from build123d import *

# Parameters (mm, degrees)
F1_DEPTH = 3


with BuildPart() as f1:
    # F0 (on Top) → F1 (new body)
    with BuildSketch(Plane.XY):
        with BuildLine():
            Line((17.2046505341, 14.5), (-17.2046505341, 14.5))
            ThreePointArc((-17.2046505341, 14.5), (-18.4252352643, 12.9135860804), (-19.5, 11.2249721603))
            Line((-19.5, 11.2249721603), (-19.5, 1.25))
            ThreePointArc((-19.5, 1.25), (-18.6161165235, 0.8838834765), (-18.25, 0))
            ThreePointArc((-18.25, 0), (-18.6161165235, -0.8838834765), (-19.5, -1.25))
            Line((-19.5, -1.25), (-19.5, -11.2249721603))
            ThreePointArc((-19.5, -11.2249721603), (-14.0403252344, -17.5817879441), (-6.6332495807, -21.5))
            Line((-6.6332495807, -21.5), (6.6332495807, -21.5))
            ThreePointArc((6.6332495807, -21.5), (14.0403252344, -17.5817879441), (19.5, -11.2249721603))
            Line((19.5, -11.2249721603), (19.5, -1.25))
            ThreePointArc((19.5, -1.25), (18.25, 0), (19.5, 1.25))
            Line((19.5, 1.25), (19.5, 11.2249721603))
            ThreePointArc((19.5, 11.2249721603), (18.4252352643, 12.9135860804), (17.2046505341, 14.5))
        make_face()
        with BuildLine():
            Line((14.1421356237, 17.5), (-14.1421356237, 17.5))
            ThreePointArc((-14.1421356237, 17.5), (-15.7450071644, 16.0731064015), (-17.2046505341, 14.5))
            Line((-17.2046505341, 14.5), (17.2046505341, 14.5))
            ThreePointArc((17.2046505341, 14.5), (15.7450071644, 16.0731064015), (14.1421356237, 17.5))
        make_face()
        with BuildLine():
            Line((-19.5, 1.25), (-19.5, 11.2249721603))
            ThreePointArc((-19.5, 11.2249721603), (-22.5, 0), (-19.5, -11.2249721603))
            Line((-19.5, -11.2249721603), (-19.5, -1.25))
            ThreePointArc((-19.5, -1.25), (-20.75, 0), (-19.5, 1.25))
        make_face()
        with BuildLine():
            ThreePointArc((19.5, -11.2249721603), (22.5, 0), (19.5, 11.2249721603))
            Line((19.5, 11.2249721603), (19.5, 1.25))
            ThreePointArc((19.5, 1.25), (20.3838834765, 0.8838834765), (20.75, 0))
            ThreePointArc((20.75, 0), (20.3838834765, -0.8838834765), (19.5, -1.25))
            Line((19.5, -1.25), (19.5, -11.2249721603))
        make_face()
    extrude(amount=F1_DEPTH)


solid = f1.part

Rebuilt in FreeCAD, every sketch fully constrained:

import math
import FreeCAD as App
import Part
import Sketcher
Q = App.Units.Quantity

doc = App.newDocument("Part")
body = doc.addObject("PartDesign::Body", "Body")

# Sketch on XY plane
sketch1 = body.newObject("Sketcher::SketchObject", "Sketch")
sketch1.AttachmentSupport = (doc.getObject("XY_Plane"), [""])
sketch1.MapMode = "FlatFace"
sketch1.addGeometry([
    Part.ArcOfCircle(Part.Circle(App.Vector(0, 0, 0), App.Vector(0, 0, 1), 22.5), math.radians(139.875965), math.radians(150.073565)),  # 0
    Part.ArcOfCircle(Part.Circle(App.Vector(0, 0, 0), App.Vector(0, 0, 1), 22.5), math.radians(150.073565), math.radians(209.926435)),  # 1
    Part.ArcOfCircle(Part.Circle(App.Vector(0, 0, 0), App.Vector(0, 0, 1), 22.5), math.radians(-150.073565), math.radians(-107.14621)),  # 2
    Part.LineSegment(App.Vector(-6.63325, -21.5, 0), App.Vector(6.63325, -21.5, 0)),  # 3
    Part.ArcOfCircle(Part.Circle(App.Vector(0, 0, 0), App.Vector(0, 0, 1), 22.5), math.radians(-72.85379), math.radians(-29.926435)),  # 4
    Part.ArcOfCircle(Part.Circle(App.Vector(0, 0, 0), App.Vector(0, 0, 1), 22.5), math.radians(-29.926435), math.radians(29.926435)),  # 5
    Part.ArcOfCircle(Part.Circle(App.Vector(0, 0, 0), App.Vector(0, 0, 1), 22.5), math.radians(29.926435), math.radians(40.124035)),  # 6
    Part.ArcOfCircle(Part.Circle(App.Vector(0, 0, 0), App.Vector(0, 0, 1), 22.5), math.radians(40.124035), math.radians(51.057559)),  # 7
    Part.LineSegment(App.Vector(14.142136, 17.5, 0), App.Vector(-14.142136, 17.5, 0)),  # 8
    Part.ArcOfCircle(Part.Circle(App.Vector(0, 0, 0), App.Vector(0, 0, 1), 22.5), math.radians(128.942441), math.radians(139.875965)),  # 9
    Part.ArcOfCircle(Part.Circle(App.Vector(19.5, 0, 0), App.Vector(0, 0, 1), 1.25), math.radians(90), math.radians(270)),  # 10
    Part.ArcOfCircle(Part.Circle(App.Vector(19.5, 0, 0), App.Vector(0, 0, 1), 1.25), math.radians(0), math.radians(90)),  # 11
    Part.ArcOfCircle(Part.Circle(App.Vector(19.5, 0, 0), App.Vector(0, 0, 1), 1.25), math.radians(-90), math.radians(0)),  # 12
    Part.ArcOfCircle(Part.Circle(App.Vector(-19.5, 0, 0), App.Vector(0, 0, 1), 1.25), math.radians(0), math.radians(90)),  # 13
    Part.ArcOfCircle(Part.Circle(App.Vector(-19.5, 0, 0), App.Vector(0, 0, 1), 1.25), math.radians(-90), math.radians(0)),  # 14
    Part.ArcOfCircle(Part.Circle(App.Vector(-19.5, 0, 0), App.Vector(0, 0, 1), 1.25), math.radians(90), math.radians(270)),  # 15
], False)
sketch1.addConstraint([
    Sketcher.Constraint("Tangent", 0, 2, 1, 1),
    Sketcher.Constraint("Tangent", 1, 2, 2, 1),
    Sketcher.Constraint("Coincident", 2, 2, 3, 1),
    Sketcher.Constraint("Coincident", 3, 2, 4, 1),
    Sketcher.Constraint("Tangent", 4, 2, 5, 1),
    Sketcher.Constraint("Tangent", 5, 2, 6, 1),
    Sketcher.Constraint("Tangent", 6, 2, 7, 1),
    Sketcher.Constraint("Coincident", 7, 2, 8, 1),
    Sketcher.Constraint("Coincident", 8, 2, 9, 1),
    Sketcher.Constraint("Tangent", 9, 2, 0, 1),
    Sketcher.Constraint("Tangent", 10, 1, 11, 2),
    Sketcher.Constraint("Tangent", 11, 1, 12, 2),
    Sketcher.Constraint("Tangent", 12, 1, 10, 2),
    Sketcher.Constraint("Tangent", 13, 1, 14, 2),
    Sketcher.Constraint("Tangent", 14, 1, 15, 2),
    Sketcher.Constraint("Tangent", 15, 1, 13, 2),
    Sketcher.Constraint("Horizontal", 3),
    Sketcher.Constraint("Horizontal", 8),
    Sketcher.Constraint("Coincident", 0, 3, -1, 1),
    Sketcher.Constraint("Coincident", 2, 3, -1, 1),
    Sketcher.Constraint("Coincident", 4, 3, -1, 1),
    Sketcher.Constraint("Coincident", 6, 3, -1, 1),
    Sketcher.Constraint("Equal", 2, 4),
    Sketcher.Constraint("Equal", 6, 7),
    Sketcher.Constraint("Equal", 7, 9),
    Sketcher.Constraint("Equal", 12, 13),
    Sketcher.Constraint("Symmetric", 10, 3, 13, 3, -1, 1),
    Sketcher.Constraint("Symmetric", 12, 1, 14, 1, -2),
    Sketcher.Constraint("PointOnObject", 11, 1, -1),
    Sketcher.Constraint("PointOnObject", 13, 1, -1),
    Sketcher.Constraint("Horizontal", 1, 2, 4, 2),
    Sketcher.Constraint("Horizontal", 0, 2, 5, 2),
    Sketcher.Constraint("Horizontal", 6, 2, 9, 2),
    Sketcher.Constraint("Vertical", 15, 3, 0, 2),
    Sketcher.Constraint("Vertical", 0, 2, 1, 2),
    Sketcher.Constraint("Vertical", 5, 2, 10, 1),
    Sketcher.Constraint("Vertical", 10, 1, 12, 1),
    Sketcher.Constraint("Vertical", 14, 1, 15, 1),
    Sketcher.Constraint("Radius", 0, Q("22.5 mm")),
    Sketcher.Constraint("Radius", 10, Q("1.25 mm")),
    Sketcher.Constraint("DistanceY", 6, 2, 7, 2, Q("3 mm")),
    Sketcher.Constraint("DistanceX", -1, 1, 10, 3, Q("19.5 mm")),
    Sketcher.Constraint("DistanceY", 2, 2, -1, 1, Q("21.5 mm")),
    Sketcher.Constraint("DistanceY", -1, 1, 6, 2, Q("14.5 mm")),
])
pad1 = body.newObject("PartDesign::Pad", "Pad")
pad1.Profile = sketch1
pad1.Length = 3

doc.recompute()
